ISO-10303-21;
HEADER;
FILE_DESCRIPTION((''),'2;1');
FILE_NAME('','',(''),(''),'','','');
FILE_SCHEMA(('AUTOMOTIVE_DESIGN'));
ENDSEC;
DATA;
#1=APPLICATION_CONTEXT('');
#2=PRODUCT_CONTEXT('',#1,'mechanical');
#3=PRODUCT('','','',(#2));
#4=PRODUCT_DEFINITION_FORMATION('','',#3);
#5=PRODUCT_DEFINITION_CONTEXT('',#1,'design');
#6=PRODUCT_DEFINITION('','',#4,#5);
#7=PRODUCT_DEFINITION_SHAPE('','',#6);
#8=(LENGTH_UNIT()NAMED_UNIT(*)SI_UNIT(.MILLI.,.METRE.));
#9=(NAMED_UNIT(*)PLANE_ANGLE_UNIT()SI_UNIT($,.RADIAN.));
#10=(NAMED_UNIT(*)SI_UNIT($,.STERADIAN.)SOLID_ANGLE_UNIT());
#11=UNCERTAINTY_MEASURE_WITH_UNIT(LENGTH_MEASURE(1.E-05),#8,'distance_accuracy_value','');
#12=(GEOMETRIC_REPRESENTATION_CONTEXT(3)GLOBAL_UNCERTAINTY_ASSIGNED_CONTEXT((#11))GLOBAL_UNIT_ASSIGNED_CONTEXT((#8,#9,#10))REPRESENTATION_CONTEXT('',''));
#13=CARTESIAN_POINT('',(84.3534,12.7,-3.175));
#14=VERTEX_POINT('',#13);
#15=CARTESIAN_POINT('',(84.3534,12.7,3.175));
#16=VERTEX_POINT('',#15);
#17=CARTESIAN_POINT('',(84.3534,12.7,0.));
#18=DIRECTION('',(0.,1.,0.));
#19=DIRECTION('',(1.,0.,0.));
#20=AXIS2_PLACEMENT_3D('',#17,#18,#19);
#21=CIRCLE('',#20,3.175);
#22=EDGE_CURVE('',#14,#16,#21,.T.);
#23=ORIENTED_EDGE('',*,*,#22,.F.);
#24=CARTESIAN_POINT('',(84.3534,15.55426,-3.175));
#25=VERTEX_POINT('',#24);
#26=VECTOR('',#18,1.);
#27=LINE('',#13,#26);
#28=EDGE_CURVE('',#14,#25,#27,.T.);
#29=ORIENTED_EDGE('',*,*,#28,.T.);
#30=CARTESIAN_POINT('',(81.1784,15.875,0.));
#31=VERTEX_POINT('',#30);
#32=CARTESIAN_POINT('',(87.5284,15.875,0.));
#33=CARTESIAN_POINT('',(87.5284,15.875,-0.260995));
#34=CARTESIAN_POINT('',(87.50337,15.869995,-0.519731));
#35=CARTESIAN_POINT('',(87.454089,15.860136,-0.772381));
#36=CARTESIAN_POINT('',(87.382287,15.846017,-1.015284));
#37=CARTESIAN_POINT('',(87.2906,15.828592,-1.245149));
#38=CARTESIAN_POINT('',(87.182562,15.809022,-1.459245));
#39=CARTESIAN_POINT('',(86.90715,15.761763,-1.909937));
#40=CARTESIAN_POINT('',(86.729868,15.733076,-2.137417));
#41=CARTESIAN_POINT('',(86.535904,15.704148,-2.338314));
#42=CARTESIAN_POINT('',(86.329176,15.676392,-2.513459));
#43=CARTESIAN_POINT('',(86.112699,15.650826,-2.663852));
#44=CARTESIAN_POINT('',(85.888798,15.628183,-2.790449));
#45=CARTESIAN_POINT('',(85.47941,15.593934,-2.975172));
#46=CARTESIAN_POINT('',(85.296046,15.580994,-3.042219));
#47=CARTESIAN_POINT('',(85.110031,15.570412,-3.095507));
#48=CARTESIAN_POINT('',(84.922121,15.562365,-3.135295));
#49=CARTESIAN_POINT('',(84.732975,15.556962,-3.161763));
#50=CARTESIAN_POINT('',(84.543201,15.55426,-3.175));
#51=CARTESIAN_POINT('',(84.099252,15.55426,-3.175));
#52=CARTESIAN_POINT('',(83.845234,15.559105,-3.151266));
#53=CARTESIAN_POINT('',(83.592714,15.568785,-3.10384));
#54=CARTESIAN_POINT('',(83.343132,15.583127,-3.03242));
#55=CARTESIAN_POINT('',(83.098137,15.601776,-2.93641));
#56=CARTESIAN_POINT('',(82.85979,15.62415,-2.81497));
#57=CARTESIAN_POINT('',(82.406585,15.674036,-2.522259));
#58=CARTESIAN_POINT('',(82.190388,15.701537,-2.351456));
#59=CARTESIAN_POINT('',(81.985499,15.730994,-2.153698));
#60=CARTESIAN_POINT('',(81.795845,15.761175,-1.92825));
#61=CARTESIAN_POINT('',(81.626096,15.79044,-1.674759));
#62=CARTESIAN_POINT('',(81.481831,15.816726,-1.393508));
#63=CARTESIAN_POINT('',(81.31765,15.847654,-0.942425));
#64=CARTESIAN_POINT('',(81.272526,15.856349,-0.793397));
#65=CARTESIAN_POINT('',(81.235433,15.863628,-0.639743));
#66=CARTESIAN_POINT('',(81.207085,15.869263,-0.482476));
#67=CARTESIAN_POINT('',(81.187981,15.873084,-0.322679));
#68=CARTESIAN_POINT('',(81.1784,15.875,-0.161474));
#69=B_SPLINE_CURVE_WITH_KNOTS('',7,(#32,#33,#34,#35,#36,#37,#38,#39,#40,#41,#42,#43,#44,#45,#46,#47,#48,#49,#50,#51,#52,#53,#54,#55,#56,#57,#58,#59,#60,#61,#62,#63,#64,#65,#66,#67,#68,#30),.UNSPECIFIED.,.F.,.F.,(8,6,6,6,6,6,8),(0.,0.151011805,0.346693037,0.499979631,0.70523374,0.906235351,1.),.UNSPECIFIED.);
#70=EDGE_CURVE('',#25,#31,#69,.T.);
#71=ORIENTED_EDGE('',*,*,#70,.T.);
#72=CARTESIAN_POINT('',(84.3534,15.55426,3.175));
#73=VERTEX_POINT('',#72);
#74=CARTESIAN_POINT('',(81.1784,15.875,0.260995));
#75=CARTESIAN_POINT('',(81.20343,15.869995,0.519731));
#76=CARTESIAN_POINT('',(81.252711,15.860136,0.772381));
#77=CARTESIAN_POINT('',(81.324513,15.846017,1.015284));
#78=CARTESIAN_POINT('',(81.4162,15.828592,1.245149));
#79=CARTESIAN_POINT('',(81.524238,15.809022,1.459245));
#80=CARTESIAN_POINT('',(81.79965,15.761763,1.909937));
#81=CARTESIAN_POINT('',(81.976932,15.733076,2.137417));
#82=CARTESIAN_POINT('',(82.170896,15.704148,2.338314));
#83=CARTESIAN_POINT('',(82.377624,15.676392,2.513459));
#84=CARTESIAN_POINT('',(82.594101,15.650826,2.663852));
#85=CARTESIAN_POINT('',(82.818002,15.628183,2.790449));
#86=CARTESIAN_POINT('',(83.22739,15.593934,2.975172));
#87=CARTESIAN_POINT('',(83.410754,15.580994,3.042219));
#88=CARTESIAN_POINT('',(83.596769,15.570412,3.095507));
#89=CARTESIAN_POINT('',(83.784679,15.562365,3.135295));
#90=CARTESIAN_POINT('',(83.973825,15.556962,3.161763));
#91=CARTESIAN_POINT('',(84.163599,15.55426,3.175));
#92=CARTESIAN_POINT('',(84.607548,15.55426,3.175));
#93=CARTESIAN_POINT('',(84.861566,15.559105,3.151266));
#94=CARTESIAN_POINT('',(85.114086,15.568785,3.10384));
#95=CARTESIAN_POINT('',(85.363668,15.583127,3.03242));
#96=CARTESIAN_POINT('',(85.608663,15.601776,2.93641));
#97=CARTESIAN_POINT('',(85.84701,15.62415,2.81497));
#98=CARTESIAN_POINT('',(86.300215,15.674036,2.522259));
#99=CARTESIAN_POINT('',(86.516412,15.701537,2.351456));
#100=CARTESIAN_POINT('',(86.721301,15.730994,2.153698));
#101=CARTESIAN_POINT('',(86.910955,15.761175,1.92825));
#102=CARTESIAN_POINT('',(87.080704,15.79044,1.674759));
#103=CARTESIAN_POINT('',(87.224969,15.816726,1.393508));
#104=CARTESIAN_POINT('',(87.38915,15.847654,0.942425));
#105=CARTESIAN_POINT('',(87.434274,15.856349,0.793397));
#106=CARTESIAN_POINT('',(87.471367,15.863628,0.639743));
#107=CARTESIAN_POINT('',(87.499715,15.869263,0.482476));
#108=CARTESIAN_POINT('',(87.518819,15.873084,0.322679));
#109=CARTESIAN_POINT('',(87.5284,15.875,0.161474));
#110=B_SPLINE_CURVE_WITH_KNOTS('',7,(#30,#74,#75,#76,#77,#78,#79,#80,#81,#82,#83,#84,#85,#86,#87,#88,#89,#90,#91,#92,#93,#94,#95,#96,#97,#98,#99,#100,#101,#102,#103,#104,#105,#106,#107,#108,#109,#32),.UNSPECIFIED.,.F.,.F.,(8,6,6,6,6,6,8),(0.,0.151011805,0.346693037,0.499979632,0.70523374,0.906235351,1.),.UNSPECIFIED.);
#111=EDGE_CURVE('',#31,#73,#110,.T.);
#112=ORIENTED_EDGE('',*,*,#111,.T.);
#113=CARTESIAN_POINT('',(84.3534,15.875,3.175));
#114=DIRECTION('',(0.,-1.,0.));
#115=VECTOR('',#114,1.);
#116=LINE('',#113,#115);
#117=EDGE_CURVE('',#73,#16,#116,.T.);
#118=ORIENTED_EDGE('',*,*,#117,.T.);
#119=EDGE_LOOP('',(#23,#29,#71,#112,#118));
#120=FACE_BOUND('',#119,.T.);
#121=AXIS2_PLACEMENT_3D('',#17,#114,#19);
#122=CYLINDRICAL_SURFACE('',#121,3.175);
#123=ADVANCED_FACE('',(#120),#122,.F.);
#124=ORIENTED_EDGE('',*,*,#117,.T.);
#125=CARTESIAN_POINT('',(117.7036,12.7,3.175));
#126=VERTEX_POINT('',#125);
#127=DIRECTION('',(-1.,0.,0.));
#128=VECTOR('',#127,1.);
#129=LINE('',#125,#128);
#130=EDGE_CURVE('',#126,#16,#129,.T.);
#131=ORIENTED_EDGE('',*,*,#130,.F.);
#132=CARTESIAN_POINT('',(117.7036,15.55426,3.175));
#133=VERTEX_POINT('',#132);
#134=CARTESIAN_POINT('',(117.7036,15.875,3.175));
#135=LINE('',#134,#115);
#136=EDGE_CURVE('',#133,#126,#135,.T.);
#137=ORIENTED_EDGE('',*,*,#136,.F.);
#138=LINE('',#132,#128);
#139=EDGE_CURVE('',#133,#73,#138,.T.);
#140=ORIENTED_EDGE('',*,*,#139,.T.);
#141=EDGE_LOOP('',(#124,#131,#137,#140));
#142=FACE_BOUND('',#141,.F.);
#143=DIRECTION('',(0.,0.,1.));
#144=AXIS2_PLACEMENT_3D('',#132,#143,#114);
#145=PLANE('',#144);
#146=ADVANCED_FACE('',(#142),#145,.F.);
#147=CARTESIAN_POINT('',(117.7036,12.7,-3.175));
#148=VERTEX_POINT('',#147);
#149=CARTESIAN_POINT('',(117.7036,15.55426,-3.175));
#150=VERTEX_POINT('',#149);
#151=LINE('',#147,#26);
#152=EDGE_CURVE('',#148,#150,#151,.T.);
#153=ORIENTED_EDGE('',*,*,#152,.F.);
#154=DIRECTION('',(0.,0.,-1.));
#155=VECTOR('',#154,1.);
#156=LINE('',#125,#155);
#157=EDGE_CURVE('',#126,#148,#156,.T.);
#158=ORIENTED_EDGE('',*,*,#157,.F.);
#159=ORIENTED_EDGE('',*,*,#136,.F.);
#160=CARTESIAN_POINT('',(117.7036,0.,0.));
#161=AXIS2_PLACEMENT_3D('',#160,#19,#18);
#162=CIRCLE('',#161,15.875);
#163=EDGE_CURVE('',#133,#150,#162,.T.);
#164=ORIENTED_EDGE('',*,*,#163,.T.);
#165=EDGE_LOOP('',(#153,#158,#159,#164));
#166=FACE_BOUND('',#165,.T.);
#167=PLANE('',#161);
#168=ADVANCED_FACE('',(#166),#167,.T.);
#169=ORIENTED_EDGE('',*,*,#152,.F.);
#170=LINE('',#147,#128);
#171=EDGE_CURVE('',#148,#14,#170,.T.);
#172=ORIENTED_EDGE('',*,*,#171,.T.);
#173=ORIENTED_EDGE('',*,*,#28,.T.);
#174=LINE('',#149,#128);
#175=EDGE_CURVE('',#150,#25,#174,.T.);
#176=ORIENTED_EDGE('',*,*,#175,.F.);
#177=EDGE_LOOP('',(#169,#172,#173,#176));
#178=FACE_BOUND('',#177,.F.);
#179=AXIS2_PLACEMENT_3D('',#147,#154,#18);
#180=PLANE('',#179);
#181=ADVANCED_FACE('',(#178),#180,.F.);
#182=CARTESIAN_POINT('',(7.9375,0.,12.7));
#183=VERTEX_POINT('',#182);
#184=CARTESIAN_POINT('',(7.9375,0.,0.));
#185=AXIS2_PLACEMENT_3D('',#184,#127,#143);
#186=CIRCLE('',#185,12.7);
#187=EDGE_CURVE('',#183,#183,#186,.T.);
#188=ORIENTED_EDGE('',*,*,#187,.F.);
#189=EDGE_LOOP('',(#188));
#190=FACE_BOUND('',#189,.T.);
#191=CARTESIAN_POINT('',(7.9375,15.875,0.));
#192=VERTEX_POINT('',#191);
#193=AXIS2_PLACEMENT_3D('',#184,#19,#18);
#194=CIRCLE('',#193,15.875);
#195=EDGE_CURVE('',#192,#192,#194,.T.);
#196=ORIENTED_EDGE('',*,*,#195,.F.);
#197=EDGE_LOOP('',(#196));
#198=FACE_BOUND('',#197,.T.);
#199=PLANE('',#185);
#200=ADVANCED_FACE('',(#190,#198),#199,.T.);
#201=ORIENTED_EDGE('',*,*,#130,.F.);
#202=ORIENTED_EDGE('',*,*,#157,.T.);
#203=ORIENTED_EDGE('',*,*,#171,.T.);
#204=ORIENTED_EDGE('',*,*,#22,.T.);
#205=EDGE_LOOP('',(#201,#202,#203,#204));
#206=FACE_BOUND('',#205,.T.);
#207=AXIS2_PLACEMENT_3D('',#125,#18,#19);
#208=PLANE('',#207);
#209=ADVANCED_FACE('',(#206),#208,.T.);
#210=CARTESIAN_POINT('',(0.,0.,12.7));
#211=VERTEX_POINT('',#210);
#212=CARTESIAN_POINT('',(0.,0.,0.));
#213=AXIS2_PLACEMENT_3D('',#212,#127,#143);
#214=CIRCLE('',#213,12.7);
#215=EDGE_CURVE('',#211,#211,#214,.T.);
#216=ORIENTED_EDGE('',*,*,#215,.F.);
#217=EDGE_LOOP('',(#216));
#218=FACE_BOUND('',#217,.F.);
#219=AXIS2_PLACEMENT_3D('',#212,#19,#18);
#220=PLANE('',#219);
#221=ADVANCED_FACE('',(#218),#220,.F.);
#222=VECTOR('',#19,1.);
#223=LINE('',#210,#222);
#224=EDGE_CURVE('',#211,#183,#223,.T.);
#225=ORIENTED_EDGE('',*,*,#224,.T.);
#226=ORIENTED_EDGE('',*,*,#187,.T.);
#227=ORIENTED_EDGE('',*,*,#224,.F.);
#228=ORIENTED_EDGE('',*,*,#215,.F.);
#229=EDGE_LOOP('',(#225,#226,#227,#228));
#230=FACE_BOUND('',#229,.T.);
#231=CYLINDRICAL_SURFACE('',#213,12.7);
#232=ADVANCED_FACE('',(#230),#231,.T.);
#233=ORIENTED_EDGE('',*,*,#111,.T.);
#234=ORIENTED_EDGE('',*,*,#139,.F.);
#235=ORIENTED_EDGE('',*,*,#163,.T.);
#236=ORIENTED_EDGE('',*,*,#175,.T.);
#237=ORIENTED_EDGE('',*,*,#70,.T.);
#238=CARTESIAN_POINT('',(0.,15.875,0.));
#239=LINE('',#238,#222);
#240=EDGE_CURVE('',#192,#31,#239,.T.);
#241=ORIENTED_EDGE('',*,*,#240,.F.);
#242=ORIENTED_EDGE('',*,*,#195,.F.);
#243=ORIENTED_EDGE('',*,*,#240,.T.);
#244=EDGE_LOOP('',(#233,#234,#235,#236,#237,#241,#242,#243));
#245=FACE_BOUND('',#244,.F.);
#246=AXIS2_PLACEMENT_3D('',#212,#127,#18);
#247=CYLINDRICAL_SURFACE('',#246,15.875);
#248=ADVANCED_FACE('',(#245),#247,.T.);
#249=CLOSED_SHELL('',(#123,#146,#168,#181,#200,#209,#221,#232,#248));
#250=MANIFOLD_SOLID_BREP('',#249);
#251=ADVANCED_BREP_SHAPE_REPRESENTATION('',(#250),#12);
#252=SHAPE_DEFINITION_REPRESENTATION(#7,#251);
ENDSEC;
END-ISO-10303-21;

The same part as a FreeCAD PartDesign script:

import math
import FreeCAD as App
import Part
import Sketcher
from FreeCAD import Vector
Q = App.Units.Quantity

doc = App.newDocument("Part")
params = doc.addObject("Spreadsheet::Sheet", "Params")
for row, (alias, value) in enumerate([
    ("sketch1_diameter", "1.25 in"),
    ("pad1_length", "4.634 in"),
    ("sketch2_height", "0.25 in"),
    ("sketch2_radius", "0.625 in"),
    ("pocket1_length", "1.313 in"),
    ("sketch3_diameter", "1 in"),
    ("sketch3_diameter2", "1.25 in"),
    ("pocket2_length", "0.3125 in"),
    ("sketch4_diameter", "0.25 in"),
    ("pocket3_length", "1 in"),
], start=1):
    params.set(f"A{row}", alias)
    params.set(f"B{row}", "=" + value)
    params.setAlias(f"B{row}", alias)

body = doc.addObject("PartDesign::Body", "Body")

# Sketch on YZ plane
sketch1 = body.newObject("Sketcher::SketchObject", "Sketch")
sketch1.AttachmentSupport = (doc.getObject("YZ_Plane"), [""])
sketch1.MapMode = "FlatFace"
sketch1.addGeometry(Part.Circle(Vector(0, 0, 0), Vector(0, 0, 1), 16), False)
sketch1.addConstraint([
    Sketcher.Constraint("Coincident", 0, 3, -1, 1),
    Sketcher.Constraint("Diameter", 0, Q("1.25 in")),
])
sketch1.setExpression("Constraints[1]", "Params.sketch1_diameter")
pad1 = body.newObject("PartDesign::Pad", "Pad")
pad1.Profile = sketch1
pad1.setExpression("Length", "Params.pad1_length")

# Sketch on YZ plane
sketch2 = body.newObject("Sketcher::SketchObject", "Sketch001")
sketch2.AttachmentSupport = (doc.getObject("YZ_Plane"), [""])
sketch2.MapMode = "FlatFace"
sketch2.AttachmentOffset = App.Placement(Vector(0, 0, 4.634 * 25.4), App.Rotation())
sketch2.addGeometry([
    Part.LineSegment(Vector(15.6, 3.2, 0), Vector(12.7, 3.2, 0)),
    Part.LineSegment(Vector(12.7, 3.2, 0), Vector(12.7, -3.2, 0)),
    Part.LineSegment(Vector(12.7, -3.2, 0), Vector(15.6, -3.2, 0)),
    Part.ArcOfCircle(Part.Circle(Vector(0, 0, 0), Vector(0, 0, 1), 15.9), math.radians(-12), math.radians(12)),
], False)
sketch2.addConstraint([
    Sketcher.Constraint("Coincident", 0, 2, 1, 1),
    Sketcher.Constraint("Coincident", 1, 2, 2, 1),
    Sketcher.Constraint("Coincident", 2, 2, 3, 1),
    Sketcher.Constraint("Coincident", 3, 2, 0, 1),
    Sketcher.Constraint("Horizontal", 0),
    Sketcher.Constraint("Vertical", 1),
    Sketcher.Constraint("Horizontal", 2),
    Sketcher.Constraint("Coincident", 3, 3, -1, 1),
    Sketcher.Constraint("Vertical", 2, 2, 3, 2),
    Sketcher.Constraint("DistanceY", 1, 2, 1, 1, Q("0.25 in")),
    Sketcher.Constraint("Radius", 3, Q("0.625 in")),
    Sketcher.Constraint("DistanceX", -1, 1, 0, 2, Q("0.5 in")),
])
sketch2.setExpression("Constraints[9]", "Params.sketch2_height")
sketch2.setExpression("Constraints[10]", "Params.sketch2_radius")
pocket1 = body.newObject("PartDesign::Pocket", "Pocket")
pocket1.Profile = sketch2
pocket1.setExpression("Length", "Params.pocket1_length")

# Sketch on YZ plane
sketch3 = body.newObject("Sketcher::SketchObject", "Sketch002")
sketch3.AttachmentSupport = (doc.getObject("YZ_Plane"), [""])
sketch3.MapMode = "FlatFace"
sketch3.addGeometry([
    Part.Circle(Vector(0, 0, 0), Vector(0, 0, 1), 16),
    Part.Circle(Vector(0, 0, 0), Vector(0, 0, 1), 13),
], False)
sketch3.addConstraint([
    Sketcher.Constraint("Coincident", 0, 3, -1, 1),
    Sketcher.Constraint("Coincident", 1, 3, -1, 1),
    Sketcher.Constraint("Diameter", 1, Q("1 in")),
    Sketcher.Constraint("Diameter", 0, Q("1.25 in")),
])
sketch3.setExpression("Constraints[2]", "Params.sketch3_diameter")
sketch3.setExpression("Constraints[3]", "Params.sketch3_diameter2")
pocket2 = body.newObject("PartDesign::Pocket", "Pocket001")
pocket2.Profile = sketch3
pocket2.setExpression("Length", "Params.pocket2_length")
pocket2.Reversed = True

# Sketch on XZ plane
sketch4 = body.newObject("Sketcher::SketchObject", "Sketch003")
sketch4.AttachmentSupport = (doc.getObject("XZ_Plane"), [""])
sketch4.MapMode = "FlatFace"
sketch4.AttachmentOffset = App.Placement(Vector(0, 0, -0.5 * 25.4), App.Rotation())
sketch4.addGeometry(Part.Circle(Vector(84.4, 0, 0), Vector(0, 0, 1), 3.2), False)
sketch4.addConstraint([
    Sketcher.Constraint("PointOnObject", 0, 3, -1),
    Sketcher.Constraint("Diameter", 0, Q("0.25 in")),
    Sketcher.Constraint("DistanceX", -1, 1, 0, 3, Q("3.321 in")),
])
sketch4.setExpression("Constraints[1]", "Params.sketch4_diameter")
pocket3 = body.newObject("PartDesign::Pocket", "Pocket002")
pocket3.Profile = sketch4
pocket3.setExpression("Length", "Params.pocket3_length")

doc.recompute()
